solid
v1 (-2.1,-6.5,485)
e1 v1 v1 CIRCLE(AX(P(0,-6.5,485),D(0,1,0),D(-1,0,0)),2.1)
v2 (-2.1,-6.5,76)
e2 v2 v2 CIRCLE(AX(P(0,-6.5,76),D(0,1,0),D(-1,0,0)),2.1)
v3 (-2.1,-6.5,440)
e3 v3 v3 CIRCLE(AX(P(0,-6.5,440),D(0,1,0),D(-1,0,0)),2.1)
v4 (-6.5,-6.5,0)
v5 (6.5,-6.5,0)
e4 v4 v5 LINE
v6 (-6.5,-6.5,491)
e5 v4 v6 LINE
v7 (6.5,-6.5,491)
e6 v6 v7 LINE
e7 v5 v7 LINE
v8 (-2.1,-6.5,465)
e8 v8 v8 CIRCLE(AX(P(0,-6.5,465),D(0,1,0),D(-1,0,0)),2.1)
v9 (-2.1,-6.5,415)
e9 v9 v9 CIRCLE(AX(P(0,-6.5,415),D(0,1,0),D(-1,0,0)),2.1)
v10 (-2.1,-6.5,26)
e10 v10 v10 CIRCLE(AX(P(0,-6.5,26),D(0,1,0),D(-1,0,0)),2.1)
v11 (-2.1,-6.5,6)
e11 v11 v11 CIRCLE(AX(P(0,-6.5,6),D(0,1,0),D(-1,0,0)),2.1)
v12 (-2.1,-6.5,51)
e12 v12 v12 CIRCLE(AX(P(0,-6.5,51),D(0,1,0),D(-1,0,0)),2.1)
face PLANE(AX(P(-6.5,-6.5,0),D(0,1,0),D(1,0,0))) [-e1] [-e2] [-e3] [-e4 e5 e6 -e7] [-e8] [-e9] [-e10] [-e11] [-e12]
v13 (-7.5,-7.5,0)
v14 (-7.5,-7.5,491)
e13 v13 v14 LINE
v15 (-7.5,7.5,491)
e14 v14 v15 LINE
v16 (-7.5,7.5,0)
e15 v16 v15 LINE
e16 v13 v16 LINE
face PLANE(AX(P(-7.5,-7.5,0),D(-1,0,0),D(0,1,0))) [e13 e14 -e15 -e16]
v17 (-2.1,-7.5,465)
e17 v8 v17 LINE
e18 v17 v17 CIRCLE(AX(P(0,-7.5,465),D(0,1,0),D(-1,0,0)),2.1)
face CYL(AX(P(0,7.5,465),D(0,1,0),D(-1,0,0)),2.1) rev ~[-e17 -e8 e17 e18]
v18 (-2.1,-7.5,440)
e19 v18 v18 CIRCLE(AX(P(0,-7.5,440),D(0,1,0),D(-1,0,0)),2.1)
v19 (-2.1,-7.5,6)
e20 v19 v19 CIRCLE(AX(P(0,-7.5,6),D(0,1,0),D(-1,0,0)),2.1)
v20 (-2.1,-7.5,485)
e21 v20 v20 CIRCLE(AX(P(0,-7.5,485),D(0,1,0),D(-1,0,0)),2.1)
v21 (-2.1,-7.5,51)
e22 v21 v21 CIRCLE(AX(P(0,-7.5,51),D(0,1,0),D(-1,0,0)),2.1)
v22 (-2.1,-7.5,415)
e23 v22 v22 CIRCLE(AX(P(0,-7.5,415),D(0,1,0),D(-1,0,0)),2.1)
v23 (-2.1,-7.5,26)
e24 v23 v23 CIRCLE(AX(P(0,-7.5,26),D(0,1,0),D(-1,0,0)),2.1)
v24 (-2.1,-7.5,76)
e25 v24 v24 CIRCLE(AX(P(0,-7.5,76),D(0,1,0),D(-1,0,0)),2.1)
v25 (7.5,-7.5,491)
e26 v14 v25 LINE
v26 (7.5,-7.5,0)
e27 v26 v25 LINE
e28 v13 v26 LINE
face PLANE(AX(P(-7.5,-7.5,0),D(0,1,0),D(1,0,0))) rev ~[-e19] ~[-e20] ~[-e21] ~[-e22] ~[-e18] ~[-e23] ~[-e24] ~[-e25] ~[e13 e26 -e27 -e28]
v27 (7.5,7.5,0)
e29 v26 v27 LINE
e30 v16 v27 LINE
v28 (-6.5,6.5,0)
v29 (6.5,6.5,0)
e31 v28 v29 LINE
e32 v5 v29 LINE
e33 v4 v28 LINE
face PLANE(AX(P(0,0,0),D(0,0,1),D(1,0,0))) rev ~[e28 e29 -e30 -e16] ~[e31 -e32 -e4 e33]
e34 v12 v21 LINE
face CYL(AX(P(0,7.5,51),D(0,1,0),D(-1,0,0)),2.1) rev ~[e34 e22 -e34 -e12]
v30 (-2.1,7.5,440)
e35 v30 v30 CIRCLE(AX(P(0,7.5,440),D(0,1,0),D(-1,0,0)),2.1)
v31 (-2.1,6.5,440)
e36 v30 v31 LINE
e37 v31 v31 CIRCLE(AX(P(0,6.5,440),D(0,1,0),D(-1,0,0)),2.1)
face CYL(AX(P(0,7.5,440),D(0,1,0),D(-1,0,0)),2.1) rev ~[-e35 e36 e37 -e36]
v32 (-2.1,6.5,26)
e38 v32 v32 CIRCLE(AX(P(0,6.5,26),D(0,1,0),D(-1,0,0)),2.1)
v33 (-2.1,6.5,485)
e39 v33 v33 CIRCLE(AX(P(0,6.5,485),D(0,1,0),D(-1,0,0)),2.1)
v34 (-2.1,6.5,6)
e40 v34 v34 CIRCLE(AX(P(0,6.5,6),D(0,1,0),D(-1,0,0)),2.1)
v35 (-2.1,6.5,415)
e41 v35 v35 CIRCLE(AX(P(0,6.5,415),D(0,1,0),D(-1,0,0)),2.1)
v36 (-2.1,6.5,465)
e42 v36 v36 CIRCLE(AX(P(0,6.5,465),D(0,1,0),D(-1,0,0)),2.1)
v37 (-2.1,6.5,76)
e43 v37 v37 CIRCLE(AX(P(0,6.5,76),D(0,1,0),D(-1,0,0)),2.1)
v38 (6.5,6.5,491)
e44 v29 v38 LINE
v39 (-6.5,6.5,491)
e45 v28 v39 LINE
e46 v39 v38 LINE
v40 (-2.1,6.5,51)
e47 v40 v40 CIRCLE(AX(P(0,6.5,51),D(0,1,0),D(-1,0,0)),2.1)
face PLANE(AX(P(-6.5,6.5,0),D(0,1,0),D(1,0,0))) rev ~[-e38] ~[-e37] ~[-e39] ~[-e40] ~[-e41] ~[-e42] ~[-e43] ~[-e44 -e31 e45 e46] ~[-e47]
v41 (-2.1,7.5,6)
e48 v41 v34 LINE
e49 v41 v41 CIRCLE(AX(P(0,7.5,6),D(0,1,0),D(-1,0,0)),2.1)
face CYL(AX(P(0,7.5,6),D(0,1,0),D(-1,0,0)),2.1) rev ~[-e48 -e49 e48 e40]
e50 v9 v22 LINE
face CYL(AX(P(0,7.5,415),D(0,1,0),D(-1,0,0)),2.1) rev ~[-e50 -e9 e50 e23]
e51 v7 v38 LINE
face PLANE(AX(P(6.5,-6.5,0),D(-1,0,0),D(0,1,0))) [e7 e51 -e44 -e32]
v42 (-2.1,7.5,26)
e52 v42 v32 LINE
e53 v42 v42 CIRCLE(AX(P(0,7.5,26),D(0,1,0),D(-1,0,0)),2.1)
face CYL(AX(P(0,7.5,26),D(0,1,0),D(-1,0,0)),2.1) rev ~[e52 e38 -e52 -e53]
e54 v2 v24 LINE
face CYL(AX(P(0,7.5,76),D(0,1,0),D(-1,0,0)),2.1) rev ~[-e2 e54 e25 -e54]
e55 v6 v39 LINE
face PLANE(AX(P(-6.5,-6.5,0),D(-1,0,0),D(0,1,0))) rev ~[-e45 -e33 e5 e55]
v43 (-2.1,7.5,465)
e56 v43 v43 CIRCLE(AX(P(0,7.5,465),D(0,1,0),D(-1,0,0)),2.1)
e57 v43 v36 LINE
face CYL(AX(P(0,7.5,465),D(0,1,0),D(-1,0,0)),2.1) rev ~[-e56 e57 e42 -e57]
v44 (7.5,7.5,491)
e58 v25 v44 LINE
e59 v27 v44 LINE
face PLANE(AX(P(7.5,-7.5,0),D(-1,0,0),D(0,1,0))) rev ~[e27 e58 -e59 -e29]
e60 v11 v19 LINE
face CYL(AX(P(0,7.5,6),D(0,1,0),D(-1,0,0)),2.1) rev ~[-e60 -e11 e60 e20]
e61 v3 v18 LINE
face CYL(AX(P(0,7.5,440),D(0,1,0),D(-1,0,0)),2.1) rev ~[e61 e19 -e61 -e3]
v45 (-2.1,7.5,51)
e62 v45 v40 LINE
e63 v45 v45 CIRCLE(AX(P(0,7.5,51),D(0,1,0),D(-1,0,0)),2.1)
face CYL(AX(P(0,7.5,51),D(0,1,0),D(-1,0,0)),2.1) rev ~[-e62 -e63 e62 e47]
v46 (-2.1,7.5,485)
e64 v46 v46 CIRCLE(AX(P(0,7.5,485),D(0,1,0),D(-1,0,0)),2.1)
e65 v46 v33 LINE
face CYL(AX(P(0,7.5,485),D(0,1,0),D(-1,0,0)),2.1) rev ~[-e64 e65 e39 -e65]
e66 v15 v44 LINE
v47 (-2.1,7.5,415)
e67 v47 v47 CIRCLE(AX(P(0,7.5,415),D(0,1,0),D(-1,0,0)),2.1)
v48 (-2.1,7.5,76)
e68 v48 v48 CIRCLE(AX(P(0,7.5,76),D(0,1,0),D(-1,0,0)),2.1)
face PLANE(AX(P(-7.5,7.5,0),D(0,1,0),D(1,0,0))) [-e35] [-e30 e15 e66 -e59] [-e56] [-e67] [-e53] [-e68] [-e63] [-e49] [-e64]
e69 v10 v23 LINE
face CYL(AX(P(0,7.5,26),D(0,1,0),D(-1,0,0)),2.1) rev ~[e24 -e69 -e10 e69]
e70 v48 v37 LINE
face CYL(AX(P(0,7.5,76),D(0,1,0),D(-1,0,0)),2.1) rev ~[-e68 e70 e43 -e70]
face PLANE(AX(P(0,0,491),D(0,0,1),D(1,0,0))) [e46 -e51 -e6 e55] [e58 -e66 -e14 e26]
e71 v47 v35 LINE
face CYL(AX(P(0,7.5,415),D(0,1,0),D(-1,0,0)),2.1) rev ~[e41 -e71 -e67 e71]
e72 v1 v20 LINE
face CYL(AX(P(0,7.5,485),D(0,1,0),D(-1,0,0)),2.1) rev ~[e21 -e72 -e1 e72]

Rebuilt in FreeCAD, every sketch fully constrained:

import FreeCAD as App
import Part
import Sketcher
from FreeCAD import Vector


def add_polygon(sketch, points):
    """Adds a closed chain of lines whose ends are joined by coincident constraints."""
    first, n = sketch.GeometryCount, len(points)
    for a, b in zip(points, points[1:] + points[:1]):
        sketch.addGeometry(Part.LineSegment(App.Vector(*a, 0), App.Vector(*b, 0)), False)
    for i in range(n):
        sketch.addConstraint(Sketcher.Constraint("Coincident", first + i, 2, first + (i + 1) % n, 1))

doc = App.newDocument("Part")
body = doc.addObject("PartDesign::Body", "Body")

# Sketch on XY plane
sketch1 = body.newObject("Sketcher::SketchObject", "Sketch")
sketch1.AttachmentSupport = (doc.getObject("XY_Plane"), [""])
sketch1.MapMode = "FlatFace"
add_polygon(sketch1, [(-8, 8), (-8, -8), (8, -8), (8, 8)])  # lines 0-3
add_polygon(sketch1, [(6, -6), (-6, -6), (-6, 6), (6, 6)])  # lines 4-7
sketch1.addConstraint(Sketcher.Constraint("Vertical", 0))
sketch1.addConstraint(Sketcher.Constraint("Horizontal", 1))
sketch1.addConstraint(Sketcher.Constraint("Vertical", 2))
sketch1.addConstraint(Sketcher.Constraint("Horizontal", 3))
sketch1.addConstraint(Sketcher.Constraint("Horizontal", 4))
sketch1.addConstraint(Sketcher.Constraint("Vertical", 5))
sketch1.addConstraint(Sketcher.Constraint("Horizontal", 6))
sketch1.addConstraint(Sketcher.Constraint("Vertical", 7))
sketch1.addConstraint(Sketcher.Constraint("Symmetric", 0, 2, 2, 2, -1, 1))
sketch1.addConstraint(Sketcher.Constraint("Symmetric", 4, 2, 6, 2, -1, 1))
sketch1.addConstraint(Sketcher.Constraint("Equal", 3, 0))
sketch1.addConstraint(Sketcher.Constraint("Equal", 6, 5))
sketch1.addConstraint(Sketcher.Constraint("DistanceX", 1, 1, 1, 2, 15.0))
sketch1.addConstraint(Sketcher.Constraint("DistanceX", 4, 2, 4, 1, 13.0))
pad1 = body.newObject("PartDesign::Pad", "Pad")
pad1.Profile = sketch1
pad1.Length = 491

# Sketch on XZ plane
sketch2 = body.newObject("Sketcher::SketchObject", "Sketch001")
sketch2.AttachmentSupport = (doc.getObject("XZ_Plane"), [""])
sketch2.MapMode = "FlatFace"
sketch2.AttachmentOffset = App.Placement(Vector(0, 0, -7.5), App.Rotation())
sketch2.addGeometry(Part.Circle(Vector(0, 6, 0), Vector(0, 0, 1), 2.1), False)
sketch2.addGeometry(Part.Circle(Vector(0, 26, 0), Vector(0, 0, 1), 2.1), False)
sketch2.addGeometry(Part.Circle(Vector(0, 51, 0), Vector(0, 0, 1), 2.1), False)
sketch2.addGeometry(Part.Circle(Vector(0, 76, 0), Vector(0, 0, 1), 2.1), False)
sketch2.addGeometry(Part.Circle(Vector(0, 415, 0), Vector(0, 0, 1), 2.1), False)
sketch2.addGeometry(Part.Circle(Vector(0, 440, 0), Vector(0, 0, 1), 2.1), False)
sketch2.addGeometry(Part.Circle(Vector(0, 465, 0), Vector(0, 0, 1), 2.1), False)
sketch2.addGeometry(Part.Circle(Vector(0, 485, 0), Vector(0, 0, 1), 2.1), False)
sketch2.addConstraint(Sketcher.Constraint("Equal", 0, 1))
sketch2.addConstraint(Sketcher.Constraint("Equal", 1, 2))
sketch2.addConstraint(Sketcher.Constraint("Equal", 2, 3))
sketch2.addConstraint(Sketcher.Constraint("Equal", 3, 4))
sketch2.addConstraint(Sketcher.Constraint("Equal", 4, 5))
sketch2.addConstraint(Sketcher.Constraint("Equal", 5, 6))
sketch2.addConstraint(Sketcher.Constraint("Equal", 6, 7))
sketch2.addConstraint(Sketcher.Constraint("PointOnObject", 0, 3, -2))
sketch2.addConstraint(Sketcher.Constraint("PointOnObject", 1, 3, -2))
sketch2.addConstraint(Sketcher.Constraint("PointOnObject", 2, 3, -2))
sketch2.addConstraint(Sketcher.Constraint("PointOnObject", 3, 3, -2))
sketch2.addConstraint(Sketcher.Constraint("PointOnObject", 4, 3, -2))
sketch2.addConstraint(Sketcher.Constraint("PointOnObject", 5, 3, -2))
sketch2.addConstraint(Sketcher.Constraint("PointOnObject", 6, 3, -2))
sketch2.addConstraint(Sketcher.Constraint("PointOnObject", 7, 3, -2))
sketch2.addConstraint(Sketcher.Constraint("Diameter", 0, 4.2))
sketch2.addConstraint(Sketcher.Constraint("DistanceY", -1, 1, 0, 3, 6.0))
sketch2.addConstraint(Sketcher.Constraint("DistanceY", -1, 1, 1, 3, 26.0))
sketch2.addConstraint(Sketcher.Constraint("DistanceY", -1, 1, 2, 3, 51.0))
sketch2.addConstraint(Sketcher.Constraint("DistanceY", -1, 1, 3, 3, 76.0))
sketch2.addConstraint(Sketcher.Constraint("DistanceY", -1, 1, 4, 3, 415.0))
sketch2.addConstraint(Sketcher.Constraint("DistanceY", -1, 1, 5, 3, 440.0))
sketch2.addConstraint(Sketcher.Constraint("DistanceY", -1, 1, 6, 3, 465.0))
sketch2.addConstraint(Sketcher.Constraint("DistanceY", -1, 1, 7, 3, 485.0))
pocket1 = body.newObject("PartDesign::Pocket", "Pocket")
pocket1.Profile = sketch2
pocket1.Length = 500
pocket1.Reversed = True

doc.recompute()
